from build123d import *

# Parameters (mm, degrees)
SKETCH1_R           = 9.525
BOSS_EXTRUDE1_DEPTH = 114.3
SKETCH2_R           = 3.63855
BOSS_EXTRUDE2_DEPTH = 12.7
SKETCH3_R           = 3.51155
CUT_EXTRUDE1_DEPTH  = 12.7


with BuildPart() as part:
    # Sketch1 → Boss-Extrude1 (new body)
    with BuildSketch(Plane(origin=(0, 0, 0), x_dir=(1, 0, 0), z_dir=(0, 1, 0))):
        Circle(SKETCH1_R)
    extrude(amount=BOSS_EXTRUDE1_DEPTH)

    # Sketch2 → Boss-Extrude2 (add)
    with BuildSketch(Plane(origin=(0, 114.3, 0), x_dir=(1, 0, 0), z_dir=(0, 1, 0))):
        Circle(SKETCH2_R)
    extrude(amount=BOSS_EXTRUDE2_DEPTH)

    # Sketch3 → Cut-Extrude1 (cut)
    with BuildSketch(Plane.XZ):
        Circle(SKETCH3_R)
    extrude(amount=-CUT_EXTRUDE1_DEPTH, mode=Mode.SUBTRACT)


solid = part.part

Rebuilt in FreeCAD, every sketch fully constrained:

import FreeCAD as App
import Part
import Sketcher
from FreeCAD import Vector
Q = App.Units.Quantity

doc = App.newDocument("Part")
body = doc.addObject("PartDesign::Body", "Body")

# Sketch on XZ plane
sketch1 = body.newObject("Sketcher::SketchObject", "Sketch")
sketch1.AttachmentSupport = (doc.getObject("XZ_Plane"), [""])
sketch1.MapMode = "FlatFace"
sketch1.addGeometry(Part.Circle(Vector(0, 0, 0), Vector(0, 0, 1), 10), False)
sketch1.addConstraint([
    Sketcher.Constraint("Coincident", 0, 3, -1, 1),
    Sketcher.Constraint("Diameter", 0, Q("0.75 in")),
])
pad1 = body.newObject("PartDesign::Pad", "Pad")
pad1.Profile = sketch1
pad1.Length = Q("4.5 in")
pad1.Reversed = True

# Sketch on XZ plane
sketch2 = body.newObject("Sketcher::SketchObject", "Sketch001")
sketch2.AttachmentSupport = (doc.getObject("XZ_Plane"), [""])
sketch2.MapMode = "FlatFace"
sketch2.AttachmentOffset = App.Placement(Vector(0, 0, -4.5 * 25.4), App.Rotation())
sketch2.addGeometry(Part.Circle(Vector(0, 0, 0), Vector(0, 0, 1), 3.6), False)
sketch2.addConstraint([
    Sketcher.Constraint("Coincident", 0, 3, -1, 1),
    Sketcher.Constraint("Diameter", 0, Q("0.2865 in")),
])
pad2 = body.newObject("PartDesign::Pad", "Pad001")
pad2.Profile = sketch2
pad2.Length = Q("0.5 in")
pad2.Reversed = True

# Sketch on XZ plane
sketch3 = body.newObject("Sketcher::SketchObject", "Sketch002")
sketch3.AttachmentSupport = (doc.getObject("XZ_Plane"), [""])
sketch3.MapMode = "FlatFace"
sketch3.addGeometry(Part.Circle(Vector(0, 0, 0), Vector(0, 0, 1), 3.5), False)
sketch3.addConstraint([
    Sketcher.Constraint("Coincident", 0, 3, -1, 1),
    Sketcher.Constraint("Diameter", 0, Q("0.2765 in")),
])
pocket1 = body.newObject("PartDesign::Pocket", "Pocket")
pocket1.Profile = sketch3
pocket1.Length = Q("0.5 in")

doc.recompute()
